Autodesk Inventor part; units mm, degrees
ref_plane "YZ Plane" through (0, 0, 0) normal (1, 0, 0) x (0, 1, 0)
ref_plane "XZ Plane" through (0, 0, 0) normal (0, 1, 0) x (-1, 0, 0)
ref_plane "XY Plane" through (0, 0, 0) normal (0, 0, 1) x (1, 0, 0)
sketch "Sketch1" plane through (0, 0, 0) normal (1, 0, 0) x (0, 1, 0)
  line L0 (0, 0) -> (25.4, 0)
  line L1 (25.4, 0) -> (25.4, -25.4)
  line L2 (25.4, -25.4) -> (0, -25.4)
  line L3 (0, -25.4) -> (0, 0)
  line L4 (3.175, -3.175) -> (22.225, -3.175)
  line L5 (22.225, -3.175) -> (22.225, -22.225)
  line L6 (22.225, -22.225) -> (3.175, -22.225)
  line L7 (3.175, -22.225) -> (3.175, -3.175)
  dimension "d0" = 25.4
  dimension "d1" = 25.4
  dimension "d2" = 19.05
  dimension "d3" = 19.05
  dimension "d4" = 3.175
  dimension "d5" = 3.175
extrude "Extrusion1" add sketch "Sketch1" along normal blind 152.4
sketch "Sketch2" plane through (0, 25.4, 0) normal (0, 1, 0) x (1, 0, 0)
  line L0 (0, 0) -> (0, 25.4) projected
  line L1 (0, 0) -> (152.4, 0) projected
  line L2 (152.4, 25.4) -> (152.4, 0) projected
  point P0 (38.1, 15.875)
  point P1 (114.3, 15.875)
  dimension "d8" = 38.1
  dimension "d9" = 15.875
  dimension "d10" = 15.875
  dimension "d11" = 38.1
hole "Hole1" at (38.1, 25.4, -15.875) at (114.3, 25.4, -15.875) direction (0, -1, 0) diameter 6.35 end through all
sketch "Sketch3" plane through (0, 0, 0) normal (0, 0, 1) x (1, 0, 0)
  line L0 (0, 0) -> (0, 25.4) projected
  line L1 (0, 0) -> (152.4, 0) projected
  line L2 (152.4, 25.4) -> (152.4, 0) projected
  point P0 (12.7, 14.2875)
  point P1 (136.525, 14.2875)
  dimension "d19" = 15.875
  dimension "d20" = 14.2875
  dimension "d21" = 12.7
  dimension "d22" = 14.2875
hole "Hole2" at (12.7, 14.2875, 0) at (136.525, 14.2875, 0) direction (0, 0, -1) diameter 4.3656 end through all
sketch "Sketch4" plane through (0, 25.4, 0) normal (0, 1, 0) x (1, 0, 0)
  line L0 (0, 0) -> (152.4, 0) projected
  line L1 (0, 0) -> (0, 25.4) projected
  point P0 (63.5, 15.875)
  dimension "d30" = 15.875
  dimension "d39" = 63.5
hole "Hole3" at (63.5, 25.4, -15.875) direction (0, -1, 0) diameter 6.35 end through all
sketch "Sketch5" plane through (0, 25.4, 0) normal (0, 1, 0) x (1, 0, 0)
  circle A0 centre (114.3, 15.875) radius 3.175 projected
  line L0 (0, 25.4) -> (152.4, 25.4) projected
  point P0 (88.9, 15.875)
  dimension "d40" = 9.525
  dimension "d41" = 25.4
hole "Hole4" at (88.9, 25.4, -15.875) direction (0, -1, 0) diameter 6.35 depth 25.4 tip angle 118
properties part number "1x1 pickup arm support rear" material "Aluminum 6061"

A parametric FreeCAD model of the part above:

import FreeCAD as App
import Part
import Sketcher
from FreeCAD import Vector
Q = App.Units.Quantity


def add_polygon(sketch, points):
    """Adds a closed chain of lines whose ends are joined by coincident constraints."""
    first, n = sketch.GeometryCount, len(points)
    for a, b in zip(points, points[1:] + points[:1]):
        sketch.addGeometry(Part.LineSegment(App.Vector(*a, 0), App.Vector(*b, 0)), False)
    for i in range(n):
        sketch.addConstraint(Sketcher.Constraint("Coincident", first + i, 2, first + (i + 1) % n, 1))

doc = App.newDocument("Part")
body = doc.addObject("PartDesign::Body", "Body")

# Sketch on YZ plane
sketch1 = body.newObject("Sketcher::SketchObject", "Sketch")
sketch1.AttachmentSupport = (doc.getObject("YZ_Plane"), [""])
sketch1.MapMode = "FlatFace"
add_polygon(sketch1, [(25, 0), (0, 0), (0, -25), (25, -25)])  # lines 0-3
add_polygon(sketch1, [(3, -22), (3, -3), (22, -3), (22, -22)])  # lines 4-7
sketch1.addConstraint([
    Sketcher.Constraint("Horizontal", 0),
    Sketcher.Constraint("Vertical", 1),
    Sketcher.Constraint("Horizontal", 2),
    Sketcher.Constraint("Vertical", 3),
    Sketcher.Constraint("Vertical", 4),
    Sketcher.Constraint("Horizontal", 5),
    Sketcher.Constraint("Vertical", 6),
    Sketcher.Constraint("Horizontal", 7),
    Sketcher.Constraint("Coincident", 0, 2, -1, 1),
    Sketcher.Constraint("Equal", 2, 1),
    Sketcher.Constraint("Equal", 7, 4),
    Sketcher.Constraint("DistanceX", 0, 2, 0, 1, Q("1 in")),
    Sketcher.Constraint("DistanceX", 5, 1, 5, 2, Q("0.75 in")),
    Sketcher.Constraint("DistanceX", -1, 1, 4, 2, Q("0.125 in")),
    Sketcher.Constraint("DistanceY", 4, 2, -1, 1, Q("0.125 in")),
])
pad1 = body.newObject("PartDesign::Pad", "Pad")
pad1.Profile = sketch1
pad1.Length = Q("6 in")

# Sketch on XZ plane
sketch2 = body.newObject("Sketcher::SketchObject", "Sketch001")
sketch2.AttachmentSupport = (doc.getObject("XZ_Plane"), [""])
sketch2.MapMode = "FlatFace"
sketch2.AttachmentOffset = App.Placement(Vector(0, 0, -1 * 25.4), App.Rotation())
sketch2.addGeometry([
    Part.Circle(Vector(38.1, -15.9, 0), Vector(0, 0, 1), 3.2),
    Part.Circle(Vector(114.3, -15.9, 0), Vector(0, 0, 1), 3.2),
], False)
sketch2.addConstraint([
    Sketcher.Constraint("Equal", 0, 1),
    Sketcher.Constraint("Horizontal", 0, 3, 1, 3),
    Sketcher.Constraint("Diameter", 0, Q("0.25 in")),
    Sketcher.Constraint("DistanceX", 0, 3, 1, 3, Q("3 in")),
    Sketcher.Constraint("DistanceX", -1, 1, 0, 3, Q("1.5 in")),
    Sketcher.Constraint("DistanceY", 0, 3, -1, 1, Q("0.625 in")),
])
doc.recompute()
hole = body.newObject("PartDesign::Hole", "Hole")
hole.Profile = sketch2
hole.ThreadType = "None"
hole.Diameter = Q("0.25 in")
hole.DepthType = "ThroughAll"
hole.Reversed = True

# Sketch on XY plane
sketch3 = body.newObject("Sketcher::SketchObject", "Sketch002")
sketch3.AttachmentSupport = (doc.getObject("XY_Plane"), [""])
sketch3.MapMode = "FlatFace"
sketch3.addGeometry([
    Part.Circle(Vector(12.7, 14.3, 0), Vector(0, 0, 1), 2.2),
    Part.Circle(Vector(136.5, 14.3, 0), Vector(0, 0, 1), 2.2),
], False)
sketch3.addConstraint([
    Sketcher.Constraint("Equal", 0, 1),
    Sketcher.Constraint("Horizontal", 0, 3, 1, 3),
    Sketcher.Constraint("Diameter", 0, Q("0.171874 in")),
    Sketcher.Constraint("DistanceX", -1, 1, 0, 3, Q("0.5 in")),
    Sketcher.Constraint("DistanceY", -1, 1, 0, 3, Q("0.5625 in")),
    Sketcher.Constraint("DistanceX", -1, 1, 1, 3, Q("5.375 in")),
])
doc.recompute()
hole2 = body.newObject("PartDesign::Hole", "Hole001")
hole2.Profile = sketch3
hole2.ThreadType = "None"
hole2.Diameter = Q("0.171874 in")
hole2.DepthType = "ThroughAll"

# Sketch on XZ plane
sketch4 = body.newObject("Sketcher::SketchObject", "Sketch003")
sketch4.AttachmentSupport = (doc.getObject("XZ_Plane"), [""])
sketch4.MapMode = "FlatFace"
sketch4.AttachmentOffset = App.Placement(Vector(0, 0, -1 * 25.4), App.Rotation())
sketch4.addGeometry(Part.Circle(Vector(63.5, -15.9, 0), Vector(0, 0, 1), 3.2), False)
sketch4.addConstraint([
    Sketcher.Constraint("Diameter", 0, Q("0.25 in")),
    Sketcher.Constraint("DistanceX", -1, 1, 0, 3, Q("2.5 in")),
    Sketcher.Constraint("DistanceY", 0, 3, -1, 1, Q("0.625 in")),
])
doc.recompute()
hole3 = body.newObject("PartDesign::Hole", "Hole002")
hole3.Profile = sketch4
hole3.ThreadType = "None"
hole3.Diameter = Q("0.25 in")
hole3.DepthType = "ThroughAll"
hole3.Reversed = True

# Sketch on XZ plane
sketch5 = body.newObject("Sketcher::SketchObject", "Sketch004")
sketch5.AttachmentSupport = (doc.getObject("XZ_Plane"), [""])
sketch5.MapMode = "FlatFace"
sketch5.AttachmentOffset = App.Placement(Vector(0, 0, -1 * 25.4), App.Rotation())
sketch5.addGeometry(Part.Circle(Vector(88.9, -15.9, 0), Vector(0, 0, 1), 3.2), False)
sketch5.addConstraint([
    Sketcher.Constraint("Diameter", 0, Q("0.25 in")),
    Sketcher.Constraint("DistanceX", -1, 1, 0, 3, Q("3.5 in")),
    Sketcher.Constraint("DistanceY", 0, 3, -1, 1, Q("0.625 in")),
])
doc.recompute()
hole4 = body.newObject("PartDesign::Hole", "Hole003")
hole4.Profile = sketch5
hole4.ThreadType = "None"
hole4.Diameter = Q("0.25 in")
hole4.DepthType = "Dimension"
hole4.Depth = Q("1 in")
hole4.DrillPoint = "Angled"
hole4.DrillPointAngle = 118
hole4.Reversed = True

doc.recompute()
